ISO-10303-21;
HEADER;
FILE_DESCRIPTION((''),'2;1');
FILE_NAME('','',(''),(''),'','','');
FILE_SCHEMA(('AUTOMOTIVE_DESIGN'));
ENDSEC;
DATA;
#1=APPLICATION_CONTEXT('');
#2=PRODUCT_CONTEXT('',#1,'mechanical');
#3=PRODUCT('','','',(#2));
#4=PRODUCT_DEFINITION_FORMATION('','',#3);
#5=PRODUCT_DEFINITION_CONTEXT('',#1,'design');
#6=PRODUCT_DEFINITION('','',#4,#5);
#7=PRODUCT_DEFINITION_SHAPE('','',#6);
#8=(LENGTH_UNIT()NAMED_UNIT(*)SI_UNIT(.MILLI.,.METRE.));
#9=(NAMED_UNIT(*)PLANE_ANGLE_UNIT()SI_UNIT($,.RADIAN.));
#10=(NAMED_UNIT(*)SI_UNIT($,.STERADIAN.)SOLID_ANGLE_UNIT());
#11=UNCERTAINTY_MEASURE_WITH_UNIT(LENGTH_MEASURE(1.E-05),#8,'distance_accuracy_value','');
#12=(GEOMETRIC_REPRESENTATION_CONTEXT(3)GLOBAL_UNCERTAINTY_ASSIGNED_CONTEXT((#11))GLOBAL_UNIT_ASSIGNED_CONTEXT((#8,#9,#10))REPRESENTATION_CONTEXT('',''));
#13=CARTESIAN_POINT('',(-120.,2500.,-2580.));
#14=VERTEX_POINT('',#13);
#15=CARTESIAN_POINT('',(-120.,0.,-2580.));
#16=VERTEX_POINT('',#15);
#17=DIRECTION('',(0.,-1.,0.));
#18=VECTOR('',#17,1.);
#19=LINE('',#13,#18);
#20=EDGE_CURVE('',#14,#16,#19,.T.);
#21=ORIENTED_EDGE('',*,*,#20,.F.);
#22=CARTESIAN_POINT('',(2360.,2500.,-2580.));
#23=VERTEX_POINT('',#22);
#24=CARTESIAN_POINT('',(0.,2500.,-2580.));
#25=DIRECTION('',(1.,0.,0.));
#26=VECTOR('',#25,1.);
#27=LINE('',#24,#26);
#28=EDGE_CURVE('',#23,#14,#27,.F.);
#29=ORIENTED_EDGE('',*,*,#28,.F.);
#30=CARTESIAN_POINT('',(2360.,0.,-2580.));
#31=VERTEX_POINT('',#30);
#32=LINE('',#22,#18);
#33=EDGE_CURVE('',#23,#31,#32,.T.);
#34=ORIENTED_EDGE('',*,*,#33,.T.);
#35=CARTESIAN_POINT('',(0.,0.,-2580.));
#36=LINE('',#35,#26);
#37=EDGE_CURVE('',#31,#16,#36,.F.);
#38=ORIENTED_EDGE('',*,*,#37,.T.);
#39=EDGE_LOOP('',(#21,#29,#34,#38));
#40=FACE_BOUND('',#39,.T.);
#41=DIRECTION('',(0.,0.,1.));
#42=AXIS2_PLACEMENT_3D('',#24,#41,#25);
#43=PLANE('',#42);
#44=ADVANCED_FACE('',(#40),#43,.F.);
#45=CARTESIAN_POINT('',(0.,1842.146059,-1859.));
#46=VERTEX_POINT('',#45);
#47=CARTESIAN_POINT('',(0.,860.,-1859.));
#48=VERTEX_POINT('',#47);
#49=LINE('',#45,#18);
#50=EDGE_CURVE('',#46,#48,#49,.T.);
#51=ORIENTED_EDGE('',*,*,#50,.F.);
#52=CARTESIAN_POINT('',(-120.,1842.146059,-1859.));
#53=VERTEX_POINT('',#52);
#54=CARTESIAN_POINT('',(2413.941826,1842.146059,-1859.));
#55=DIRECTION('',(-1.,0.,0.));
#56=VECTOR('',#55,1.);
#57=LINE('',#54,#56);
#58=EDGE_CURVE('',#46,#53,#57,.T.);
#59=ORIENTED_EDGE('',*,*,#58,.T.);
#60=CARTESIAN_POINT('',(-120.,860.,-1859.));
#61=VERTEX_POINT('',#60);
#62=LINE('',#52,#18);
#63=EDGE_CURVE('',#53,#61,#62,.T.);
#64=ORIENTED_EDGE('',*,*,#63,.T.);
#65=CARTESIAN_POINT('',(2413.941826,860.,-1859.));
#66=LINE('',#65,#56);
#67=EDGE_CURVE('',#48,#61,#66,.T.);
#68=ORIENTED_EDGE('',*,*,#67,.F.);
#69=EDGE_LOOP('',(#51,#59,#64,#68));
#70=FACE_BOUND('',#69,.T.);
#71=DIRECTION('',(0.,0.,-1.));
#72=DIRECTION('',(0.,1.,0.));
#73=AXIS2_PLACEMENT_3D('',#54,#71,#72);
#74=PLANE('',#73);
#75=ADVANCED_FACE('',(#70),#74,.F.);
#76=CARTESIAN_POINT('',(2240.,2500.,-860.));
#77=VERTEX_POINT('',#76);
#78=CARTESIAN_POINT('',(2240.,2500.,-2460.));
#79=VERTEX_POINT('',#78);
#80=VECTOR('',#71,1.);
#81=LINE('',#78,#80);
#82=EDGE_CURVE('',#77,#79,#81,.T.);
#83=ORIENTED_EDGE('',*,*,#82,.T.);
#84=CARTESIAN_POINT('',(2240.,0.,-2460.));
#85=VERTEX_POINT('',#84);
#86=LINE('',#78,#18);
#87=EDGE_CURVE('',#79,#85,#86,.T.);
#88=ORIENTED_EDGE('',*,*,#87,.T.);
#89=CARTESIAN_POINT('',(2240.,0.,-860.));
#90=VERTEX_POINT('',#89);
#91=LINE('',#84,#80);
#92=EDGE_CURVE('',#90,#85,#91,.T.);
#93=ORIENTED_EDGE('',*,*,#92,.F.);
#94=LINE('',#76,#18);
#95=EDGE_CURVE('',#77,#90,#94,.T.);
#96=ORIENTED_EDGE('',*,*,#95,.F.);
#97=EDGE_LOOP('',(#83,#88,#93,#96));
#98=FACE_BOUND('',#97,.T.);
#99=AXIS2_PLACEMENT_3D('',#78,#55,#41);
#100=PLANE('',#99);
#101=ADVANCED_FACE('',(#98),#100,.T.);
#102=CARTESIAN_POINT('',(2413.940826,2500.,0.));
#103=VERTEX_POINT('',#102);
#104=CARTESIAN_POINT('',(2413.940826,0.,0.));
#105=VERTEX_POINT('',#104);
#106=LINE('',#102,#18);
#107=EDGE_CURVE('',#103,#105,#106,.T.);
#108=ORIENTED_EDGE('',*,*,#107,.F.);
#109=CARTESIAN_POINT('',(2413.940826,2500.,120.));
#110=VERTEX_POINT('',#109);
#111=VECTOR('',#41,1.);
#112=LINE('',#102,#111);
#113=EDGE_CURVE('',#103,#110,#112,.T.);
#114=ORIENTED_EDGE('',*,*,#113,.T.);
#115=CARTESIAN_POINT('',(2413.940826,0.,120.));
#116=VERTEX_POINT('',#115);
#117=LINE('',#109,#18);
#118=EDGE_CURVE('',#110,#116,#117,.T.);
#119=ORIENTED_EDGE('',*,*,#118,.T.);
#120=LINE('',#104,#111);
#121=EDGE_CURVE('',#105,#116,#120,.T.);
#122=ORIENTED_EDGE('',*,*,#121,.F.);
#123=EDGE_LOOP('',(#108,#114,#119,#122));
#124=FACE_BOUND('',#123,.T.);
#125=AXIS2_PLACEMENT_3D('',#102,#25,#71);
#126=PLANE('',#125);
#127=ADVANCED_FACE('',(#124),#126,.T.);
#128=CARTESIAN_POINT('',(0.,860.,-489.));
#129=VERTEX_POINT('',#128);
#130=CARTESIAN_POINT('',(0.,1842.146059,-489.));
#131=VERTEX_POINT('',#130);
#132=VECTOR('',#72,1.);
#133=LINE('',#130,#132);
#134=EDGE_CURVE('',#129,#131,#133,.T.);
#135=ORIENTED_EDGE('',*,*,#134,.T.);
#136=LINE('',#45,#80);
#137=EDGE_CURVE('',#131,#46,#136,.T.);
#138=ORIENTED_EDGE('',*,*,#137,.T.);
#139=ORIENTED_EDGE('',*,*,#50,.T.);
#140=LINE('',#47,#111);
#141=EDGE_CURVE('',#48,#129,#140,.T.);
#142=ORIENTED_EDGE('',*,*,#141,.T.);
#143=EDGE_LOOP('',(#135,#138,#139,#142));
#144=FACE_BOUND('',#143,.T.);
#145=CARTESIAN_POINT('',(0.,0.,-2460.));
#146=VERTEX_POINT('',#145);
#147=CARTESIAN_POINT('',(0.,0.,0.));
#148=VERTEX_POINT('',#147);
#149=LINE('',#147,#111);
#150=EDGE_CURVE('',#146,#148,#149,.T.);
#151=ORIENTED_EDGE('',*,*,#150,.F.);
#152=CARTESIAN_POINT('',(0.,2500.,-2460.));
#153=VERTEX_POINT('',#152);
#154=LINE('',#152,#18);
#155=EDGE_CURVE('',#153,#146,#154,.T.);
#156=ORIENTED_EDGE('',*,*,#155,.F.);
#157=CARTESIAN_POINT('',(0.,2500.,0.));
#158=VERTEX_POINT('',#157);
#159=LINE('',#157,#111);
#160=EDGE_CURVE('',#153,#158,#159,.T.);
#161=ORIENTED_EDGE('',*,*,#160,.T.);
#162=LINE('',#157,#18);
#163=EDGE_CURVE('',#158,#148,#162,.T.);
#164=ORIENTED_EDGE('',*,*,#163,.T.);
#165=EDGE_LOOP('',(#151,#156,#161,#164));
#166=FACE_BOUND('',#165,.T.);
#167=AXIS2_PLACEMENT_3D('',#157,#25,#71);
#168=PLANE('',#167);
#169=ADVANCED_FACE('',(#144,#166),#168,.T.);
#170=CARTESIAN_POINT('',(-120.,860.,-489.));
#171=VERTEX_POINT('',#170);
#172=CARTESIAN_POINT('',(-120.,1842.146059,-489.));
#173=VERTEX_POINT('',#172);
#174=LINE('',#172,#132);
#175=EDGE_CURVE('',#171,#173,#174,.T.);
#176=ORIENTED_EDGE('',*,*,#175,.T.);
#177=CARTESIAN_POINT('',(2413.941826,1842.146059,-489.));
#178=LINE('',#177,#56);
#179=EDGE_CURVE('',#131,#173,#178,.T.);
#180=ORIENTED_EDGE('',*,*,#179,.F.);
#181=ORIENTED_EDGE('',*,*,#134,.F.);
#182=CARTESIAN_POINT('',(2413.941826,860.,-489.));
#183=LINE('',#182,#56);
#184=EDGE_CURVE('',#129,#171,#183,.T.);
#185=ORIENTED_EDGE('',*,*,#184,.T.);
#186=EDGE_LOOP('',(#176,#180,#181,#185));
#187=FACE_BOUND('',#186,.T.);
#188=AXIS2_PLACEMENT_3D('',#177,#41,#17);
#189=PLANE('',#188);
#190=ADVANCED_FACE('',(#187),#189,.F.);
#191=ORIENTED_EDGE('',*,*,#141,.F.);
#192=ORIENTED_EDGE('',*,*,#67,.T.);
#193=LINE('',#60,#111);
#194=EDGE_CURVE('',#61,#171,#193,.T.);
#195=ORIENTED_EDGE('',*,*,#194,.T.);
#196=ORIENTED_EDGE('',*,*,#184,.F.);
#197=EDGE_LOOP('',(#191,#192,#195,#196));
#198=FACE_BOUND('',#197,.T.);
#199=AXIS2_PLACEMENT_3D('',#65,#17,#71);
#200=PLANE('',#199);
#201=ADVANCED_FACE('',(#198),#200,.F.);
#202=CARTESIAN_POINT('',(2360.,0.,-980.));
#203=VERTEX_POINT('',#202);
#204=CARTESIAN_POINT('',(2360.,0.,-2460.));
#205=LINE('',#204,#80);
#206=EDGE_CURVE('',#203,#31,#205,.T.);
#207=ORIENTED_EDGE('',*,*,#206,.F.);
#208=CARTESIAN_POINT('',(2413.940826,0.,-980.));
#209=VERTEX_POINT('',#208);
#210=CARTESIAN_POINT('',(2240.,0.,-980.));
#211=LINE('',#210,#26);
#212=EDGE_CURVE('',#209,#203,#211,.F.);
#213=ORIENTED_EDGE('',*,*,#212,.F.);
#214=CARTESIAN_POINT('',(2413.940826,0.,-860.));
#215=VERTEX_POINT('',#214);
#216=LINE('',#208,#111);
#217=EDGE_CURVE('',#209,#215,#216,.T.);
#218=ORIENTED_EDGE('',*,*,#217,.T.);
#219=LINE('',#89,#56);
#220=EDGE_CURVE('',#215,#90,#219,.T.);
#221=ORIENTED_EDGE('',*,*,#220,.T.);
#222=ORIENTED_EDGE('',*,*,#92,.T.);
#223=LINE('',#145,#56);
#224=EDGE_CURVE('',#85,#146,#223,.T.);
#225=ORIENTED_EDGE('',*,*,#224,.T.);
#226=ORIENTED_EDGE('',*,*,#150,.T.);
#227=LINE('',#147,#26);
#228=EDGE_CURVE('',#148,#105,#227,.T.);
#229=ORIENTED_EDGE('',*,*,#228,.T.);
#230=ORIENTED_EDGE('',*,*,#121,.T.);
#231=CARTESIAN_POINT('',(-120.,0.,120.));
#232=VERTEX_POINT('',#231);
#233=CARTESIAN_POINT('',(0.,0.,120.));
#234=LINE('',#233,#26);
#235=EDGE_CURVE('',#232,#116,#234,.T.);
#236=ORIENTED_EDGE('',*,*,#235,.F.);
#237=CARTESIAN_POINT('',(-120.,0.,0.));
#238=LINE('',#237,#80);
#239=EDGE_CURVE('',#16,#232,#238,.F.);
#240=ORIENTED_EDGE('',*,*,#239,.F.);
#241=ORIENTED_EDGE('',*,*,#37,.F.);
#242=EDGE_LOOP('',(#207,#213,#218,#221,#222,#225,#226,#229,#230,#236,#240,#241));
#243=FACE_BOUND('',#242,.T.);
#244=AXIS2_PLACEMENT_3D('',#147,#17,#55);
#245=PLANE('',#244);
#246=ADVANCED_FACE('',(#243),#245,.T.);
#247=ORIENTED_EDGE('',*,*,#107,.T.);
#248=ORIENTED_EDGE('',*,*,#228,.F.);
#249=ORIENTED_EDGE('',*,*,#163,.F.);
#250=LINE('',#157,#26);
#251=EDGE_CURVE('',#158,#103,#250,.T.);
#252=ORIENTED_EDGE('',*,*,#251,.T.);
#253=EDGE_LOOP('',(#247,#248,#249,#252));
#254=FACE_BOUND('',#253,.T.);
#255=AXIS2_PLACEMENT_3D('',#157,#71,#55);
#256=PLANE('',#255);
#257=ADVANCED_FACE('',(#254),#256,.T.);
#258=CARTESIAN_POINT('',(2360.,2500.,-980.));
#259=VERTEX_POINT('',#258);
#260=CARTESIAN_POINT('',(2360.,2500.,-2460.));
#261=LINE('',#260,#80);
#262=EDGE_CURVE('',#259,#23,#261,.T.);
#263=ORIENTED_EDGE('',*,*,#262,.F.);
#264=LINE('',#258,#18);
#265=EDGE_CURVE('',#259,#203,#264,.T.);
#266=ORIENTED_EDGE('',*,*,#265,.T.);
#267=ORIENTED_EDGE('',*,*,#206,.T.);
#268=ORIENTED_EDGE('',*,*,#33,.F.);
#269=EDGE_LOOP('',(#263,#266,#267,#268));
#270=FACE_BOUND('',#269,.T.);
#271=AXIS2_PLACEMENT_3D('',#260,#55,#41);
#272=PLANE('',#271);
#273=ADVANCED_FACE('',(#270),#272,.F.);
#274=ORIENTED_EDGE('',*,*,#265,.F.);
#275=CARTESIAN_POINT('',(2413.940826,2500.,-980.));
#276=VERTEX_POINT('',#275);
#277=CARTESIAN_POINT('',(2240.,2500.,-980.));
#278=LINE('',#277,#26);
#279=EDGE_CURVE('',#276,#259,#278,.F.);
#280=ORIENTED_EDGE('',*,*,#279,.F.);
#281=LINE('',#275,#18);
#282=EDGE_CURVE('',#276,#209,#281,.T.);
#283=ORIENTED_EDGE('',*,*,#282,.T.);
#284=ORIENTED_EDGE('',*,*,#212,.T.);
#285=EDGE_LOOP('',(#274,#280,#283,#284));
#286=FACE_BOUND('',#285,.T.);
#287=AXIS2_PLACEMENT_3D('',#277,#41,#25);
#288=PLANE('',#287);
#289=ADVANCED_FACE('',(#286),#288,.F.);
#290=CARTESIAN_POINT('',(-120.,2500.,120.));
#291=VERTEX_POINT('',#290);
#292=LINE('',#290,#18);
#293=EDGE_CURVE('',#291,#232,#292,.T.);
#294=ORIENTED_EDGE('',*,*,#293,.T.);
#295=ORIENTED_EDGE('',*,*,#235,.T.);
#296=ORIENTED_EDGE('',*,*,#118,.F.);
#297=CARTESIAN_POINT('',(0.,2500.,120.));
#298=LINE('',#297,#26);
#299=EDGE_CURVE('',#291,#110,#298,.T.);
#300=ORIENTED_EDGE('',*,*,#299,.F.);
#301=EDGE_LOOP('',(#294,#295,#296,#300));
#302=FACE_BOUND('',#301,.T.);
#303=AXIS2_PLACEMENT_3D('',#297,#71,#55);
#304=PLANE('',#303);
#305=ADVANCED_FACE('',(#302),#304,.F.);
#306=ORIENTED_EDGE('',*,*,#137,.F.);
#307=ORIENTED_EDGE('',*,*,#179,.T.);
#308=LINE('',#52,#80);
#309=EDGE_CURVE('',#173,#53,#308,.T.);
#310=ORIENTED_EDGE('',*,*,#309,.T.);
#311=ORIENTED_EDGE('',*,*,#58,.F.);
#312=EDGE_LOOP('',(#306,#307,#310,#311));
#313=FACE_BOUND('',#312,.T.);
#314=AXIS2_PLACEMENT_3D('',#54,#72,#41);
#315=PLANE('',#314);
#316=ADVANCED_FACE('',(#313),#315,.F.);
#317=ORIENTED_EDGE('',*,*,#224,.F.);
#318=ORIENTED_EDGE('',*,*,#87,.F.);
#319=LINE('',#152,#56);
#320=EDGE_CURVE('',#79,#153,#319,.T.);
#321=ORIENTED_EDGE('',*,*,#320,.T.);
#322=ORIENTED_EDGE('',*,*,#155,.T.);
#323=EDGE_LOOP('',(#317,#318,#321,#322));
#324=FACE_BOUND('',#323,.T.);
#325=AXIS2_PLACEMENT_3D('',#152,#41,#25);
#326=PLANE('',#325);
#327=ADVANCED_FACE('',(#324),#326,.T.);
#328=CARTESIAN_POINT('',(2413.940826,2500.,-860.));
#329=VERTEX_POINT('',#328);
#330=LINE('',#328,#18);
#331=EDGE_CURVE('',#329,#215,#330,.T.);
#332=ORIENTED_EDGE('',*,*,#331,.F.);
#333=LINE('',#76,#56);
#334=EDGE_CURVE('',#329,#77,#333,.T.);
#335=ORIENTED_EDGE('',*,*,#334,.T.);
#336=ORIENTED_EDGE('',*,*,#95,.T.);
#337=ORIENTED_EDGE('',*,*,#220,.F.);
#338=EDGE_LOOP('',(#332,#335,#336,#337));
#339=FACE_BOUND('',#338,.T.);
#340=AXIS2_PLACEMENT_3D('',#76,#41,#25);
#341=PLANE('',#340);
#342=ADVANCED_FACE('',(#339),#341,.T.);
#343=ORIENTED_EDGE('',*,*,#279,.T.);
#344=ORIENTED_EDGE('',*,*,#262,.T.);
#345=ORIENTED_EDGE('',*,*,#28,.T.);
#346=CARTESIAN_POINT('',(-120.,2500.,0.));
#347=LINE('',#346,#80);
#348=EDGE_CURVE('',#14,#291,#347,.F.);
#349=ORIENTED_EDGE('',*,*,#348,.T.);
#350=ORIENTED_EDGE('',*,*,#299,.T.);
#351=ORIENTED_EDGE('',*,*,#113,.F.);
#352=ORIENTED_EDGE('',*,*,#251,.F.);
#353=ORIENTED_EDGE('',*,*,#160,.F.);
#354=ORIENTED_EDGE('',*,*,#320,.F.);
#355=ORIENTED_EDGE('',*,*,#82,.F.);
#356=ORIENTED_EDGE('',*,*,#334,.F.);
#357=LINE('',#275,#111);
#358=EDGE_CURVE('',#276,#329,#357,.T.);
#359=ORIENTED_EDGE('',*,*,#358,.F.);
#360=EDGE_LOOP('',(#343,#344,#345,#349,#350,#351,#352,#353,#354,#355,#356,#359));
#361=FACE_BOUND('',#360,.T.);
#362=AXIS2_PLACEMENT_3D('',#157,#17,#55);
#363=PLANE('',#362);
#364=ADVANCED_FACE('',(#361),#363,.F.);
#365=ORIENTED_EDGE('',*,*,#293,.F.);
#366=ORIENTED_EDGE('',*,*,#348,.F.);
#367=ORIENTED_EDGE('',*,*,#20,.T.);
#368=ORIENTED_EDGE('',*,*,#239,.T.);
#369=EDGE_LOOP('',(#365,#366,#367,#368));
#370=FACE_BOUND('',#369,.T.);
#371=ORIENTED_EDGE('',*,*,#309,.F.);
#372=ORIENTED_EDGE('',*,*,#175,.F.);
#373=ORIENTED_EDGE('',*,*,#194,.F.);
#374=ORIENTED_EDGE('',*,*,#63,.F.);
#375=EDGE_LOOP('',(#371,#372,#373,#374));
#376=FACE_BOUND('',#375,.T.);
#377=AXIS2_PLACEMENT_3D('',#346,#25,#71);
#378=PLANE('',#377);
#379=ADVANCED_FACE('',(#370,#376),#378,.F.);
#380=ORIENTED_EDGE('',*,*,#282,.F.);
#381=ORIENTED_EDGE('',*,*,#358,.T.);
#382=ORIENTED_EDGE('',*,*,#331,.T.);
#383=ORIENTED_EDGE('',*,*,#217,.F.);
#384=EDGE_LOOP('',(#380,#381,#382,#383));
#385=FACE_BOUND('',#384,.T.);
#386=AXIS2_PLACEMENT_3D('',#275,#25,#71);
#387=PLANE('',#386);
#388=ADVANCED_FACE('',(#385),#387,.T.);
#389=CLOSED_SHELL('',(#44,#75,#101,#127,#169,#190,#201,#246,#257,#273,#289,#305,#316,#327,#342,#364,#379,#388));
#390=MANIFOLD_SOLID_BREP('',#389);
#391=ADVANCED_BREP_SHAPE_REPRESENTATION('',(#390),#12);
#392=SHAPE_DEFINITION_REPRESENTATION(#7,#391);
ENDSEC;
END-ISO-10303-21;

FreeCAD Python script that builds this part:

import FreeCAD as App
import Part
import Sketcher

V = App.Vector


def add_polygon(sketch, points):
    """Adds a closed chain of lines whose ends are joined by coincident constraints."""
    first, n = sketch.GeometryCount, len(points)
    for a, b in zip(points, points[1:] + points[:1]):
        sketch.addGeometry(Part.LineSegment(App.Vector(*a, 0), App.Vector(*b, 0)), False)
    for i in range(n):
        sketch.addConstraint(Sketcher.Constraint("Coincident", first + i, 2, first + (i + 1) % n, 1))

doc = App.newDocument("Part")
body = doc.addObject("PartDesign::Body", "Body")

sketch1 = body.newObject("Sketcher::SketchObject", "Sketch")
sketch1.AttachmentSupport = (doc.getObject("XZ_Plane"), [""])
sketch1.MapMode = "FlatFace"
add_polygon(sketch1, [(2414, 0), (0, 0), (0, -2460), (2240, -2460), (2240, -860), (2414, -860), (2414, -980), (2360, -980), (2360, -2580), (-120, -2580), (-120, 120), (2414, 120)])
sketch1.addConstraint(Sketcher.Constraint("Horizontal", 0))
sketch1.addConstraint(Sketcher.Constraint("Vertical", 1))
sketch1.addConstraint(Sketcher.Constraint("Horizontal", 2))
sketch1.addConstraint(Sketcher.Constraint("Vertical", 3))
sketch1.addConstraint(Sketcher.Constraint("Horizontal", 4))
sketch1.addConstraint(Sketcher.Constraint("Vertical", 5))
sketch1.addConstraint(Sketcher.Constraint("Horizontal", 6))
sketch1.addConstraint(Sketcher.Constraint("Vertical", 7))
sketch1.addConstraint(Sketcher.Constraint("Horizontal", 8))
sketch1.addConstraint(Sketcher.Constraint("Vertical", 9))
sketch1.addConstraint(Sketcher.Constraint("Horizontal", 10))
sketch1.addConstraint(Sketcher.Constraint("Vertical", 11))
sketch1.addConstraint(Sketcher.Constraint("Coincident", 0, 2, -1, 1))
sketch1.addConstraint(Sketcher.Constraint("Vertical", 5, 2, 10, 2))
sketch1.addConstraint(Sketcher.Constraint("Equal", 3, 7))
sketch1.addConstraint(Sketcher.Constraint("Equal", 5, 11))
sketch1.addConstraint(Sketcher.Constraint("DistanceX", 2, 1, 2, 2, 2240.0))
sketch1.addConstraint(Sketcher.Constraint("DistanceX", 8, 2, 8, 1, 2480.0))
sketch1.addConstraint(Sketcher.Constraint("DistanceY", 1, 2, 1, 1, 2460.0))
sketch1.addConstraint(Sketcher.Constraint("DistanceY", 3, 1, 3, 2, 1600.0))
sketch1.addConstraint(Sketcher.Constraint("DistanceY", 5, 2, 5, 1, 120.0))
sketch1.addConstraint(Sketcher.Constraint("DistanceX", -1, 1, 6, 2, 2360.0))
sketch1.addConstraint(Sketcher.Constraint("DistanceX", 0, 2, 0, 1, 2413.940826))
pad1 = body.newObject("PartDesign::Pad", "Pad")
pad1.Profile = sketch1
pad1.Length = 2500
pad1.Reversed = True

sketch2 = body.newObject("Sketcher::SketchObject", "Sketch001")
sketch2.AttachmentSupport = (doc.getObject("YZ_Plane"), [""])
sketch2.MapMode = "FlatFace"
sketch2.AttachmentOffset = App.Placement(V(0, 0, -120), App.Rotation())
add_polygon(sketch2, [(1842, -1859), (860, -1859), (860, -489), (1842, -489)])
sketch2.addConstraint(Sketcher.Constraint("Horizontal", 0))
sketch2.addConstraint(Sketcher.Constraint("Vertical", 1))
sketch2.addConstraint(Sketcher.Constraint("Horizontal", 2))
sketch2.addConstraint(Sketcher.Constraint("Vertical", 3))
sketch2.addConstraint(Sketcher.Constraint("DistanceY", 1, 1, 1, 2, 1370.0))
sketch2.addConstraint(Sketcher.Constraint("DistanceX", -1, 1, 0, 2, 860.0))
sketch2.addConstraint(Sketcher.Constraint("DistanceY", 0, 2, -1, 1, 1859.0))
sketch2.addConstraint(Sketcher.Constraint("DistanceX", 0, 2, 0, 1, 982.146059))
pocket1 = body.newObject("PartDesign::Pocket", "Pocket")
pocket1.Profile = sketch2
pocket1.Type = "UpToFirst"
pocket1.Reversed = True

doc.recompute()
